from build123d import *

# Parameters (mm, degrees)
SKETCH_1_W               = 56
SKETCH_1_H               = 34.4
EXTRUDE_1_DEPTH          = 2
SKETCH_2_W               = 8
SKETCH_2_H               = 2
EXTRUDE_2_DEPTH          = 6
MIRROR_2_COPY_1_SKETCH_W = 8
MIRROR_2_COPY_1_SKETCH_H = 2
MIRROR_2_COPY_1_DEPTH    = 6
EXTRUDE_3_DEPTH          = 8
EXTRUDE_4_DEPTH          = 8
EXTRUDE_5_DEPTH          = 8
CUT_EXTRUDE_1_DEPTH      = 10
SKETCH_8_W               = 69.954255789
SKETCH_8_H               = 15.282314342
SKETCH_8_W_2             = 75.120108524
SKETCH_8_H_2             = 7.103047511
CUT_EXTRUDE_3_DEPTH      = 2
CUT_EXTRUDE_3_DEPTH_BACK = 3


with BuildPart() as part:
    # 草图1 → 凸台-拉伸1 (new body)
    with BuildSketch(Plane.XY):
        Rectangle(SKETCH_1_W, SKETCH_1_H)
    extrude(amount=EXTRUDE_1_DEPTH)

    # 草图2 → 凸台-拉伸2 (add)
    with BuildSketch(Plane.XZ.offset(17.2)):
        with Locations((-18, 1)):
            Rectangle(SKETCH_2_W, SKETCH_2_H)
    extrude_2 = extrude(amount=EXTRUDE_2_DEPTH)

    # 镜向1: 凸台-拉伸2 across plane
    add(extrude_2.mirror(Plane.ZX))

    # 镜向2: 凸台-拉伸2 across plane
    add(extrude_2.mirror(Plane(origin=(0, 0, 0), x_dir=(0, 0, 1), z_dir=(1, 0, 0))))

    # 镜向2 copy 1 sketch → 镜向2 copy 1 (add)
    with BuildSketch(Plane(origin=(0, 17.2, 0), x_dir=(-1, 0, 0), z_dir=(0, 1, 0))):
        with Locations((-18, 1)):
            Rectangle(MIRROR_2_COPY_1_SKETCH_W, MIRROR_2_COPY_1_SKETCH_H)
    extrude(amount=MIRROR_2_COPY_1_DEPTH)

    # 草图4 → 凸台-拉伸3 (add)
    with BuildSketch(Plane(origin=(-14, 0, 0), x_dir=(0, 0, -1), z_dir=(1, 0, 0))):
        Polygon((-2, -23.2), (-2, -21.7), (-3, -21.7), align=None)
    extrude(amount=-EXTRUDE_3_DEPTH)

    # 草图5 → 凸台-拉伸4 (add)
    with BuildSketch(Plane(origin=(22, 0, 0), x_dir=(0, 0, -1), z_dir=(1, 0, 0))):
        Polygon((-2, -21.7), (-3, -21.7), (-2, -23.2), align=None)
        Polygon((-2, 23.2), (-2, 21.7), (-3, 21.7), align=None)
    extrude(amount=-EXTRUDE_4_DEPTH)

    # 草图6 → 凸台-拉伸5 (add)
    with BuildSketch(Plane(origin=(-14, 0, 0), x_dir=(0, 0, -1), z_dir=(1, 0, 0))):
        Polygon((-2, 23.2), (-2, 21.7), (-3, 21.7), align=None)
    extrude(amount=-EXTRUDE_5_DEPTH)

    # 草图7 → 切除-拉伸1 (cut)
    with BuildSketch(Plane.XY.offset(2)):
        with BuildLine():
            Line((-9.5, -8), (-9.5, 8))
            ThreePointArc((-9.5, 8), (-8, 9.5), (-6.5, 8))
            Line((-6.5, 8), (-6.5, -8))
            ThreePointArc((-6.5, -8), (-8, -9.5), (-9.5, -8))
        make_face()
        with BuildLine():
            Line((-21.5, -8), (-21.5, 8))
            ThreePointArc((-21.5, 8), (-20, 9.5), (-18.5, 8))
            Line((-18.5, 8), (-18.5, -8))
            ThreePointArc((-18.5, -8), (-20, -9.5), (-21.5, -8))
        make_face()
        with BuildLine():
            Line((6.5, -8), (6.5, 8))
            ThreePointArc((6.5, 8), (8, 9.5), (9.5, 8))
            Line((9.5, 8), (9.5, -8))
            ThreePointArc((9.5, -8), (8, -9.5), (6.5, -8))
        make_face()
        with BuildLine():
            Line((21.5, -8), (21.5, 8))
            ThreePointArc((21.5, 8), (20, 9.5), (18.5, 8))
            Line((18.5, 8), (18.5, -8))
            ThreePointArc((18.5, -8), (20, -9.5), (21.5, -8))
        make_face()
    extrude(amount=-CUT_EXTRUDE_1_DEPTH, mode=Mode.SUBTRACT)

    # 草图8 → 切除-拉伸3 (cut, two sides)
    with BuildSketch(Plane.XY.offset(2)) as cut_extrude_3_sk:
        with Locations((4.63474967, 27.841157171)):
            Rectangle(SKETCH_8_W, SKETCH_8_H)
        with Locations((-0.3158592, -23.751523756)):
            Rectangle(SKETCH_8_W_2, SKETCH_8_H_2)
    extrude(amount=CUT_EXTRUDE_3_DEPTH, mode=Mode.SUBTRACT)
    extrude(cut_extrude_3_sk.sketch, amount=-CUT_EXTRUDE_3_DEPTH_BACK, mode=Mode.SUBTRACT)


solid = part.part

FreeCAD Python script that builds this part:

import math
import FreeCAD as App
import Part
import Sketcher


def add_polygon(sketch, points):
    """Adds a closed chain of lines whose ends are joined by coincident constraints."""
    first, n = sketch.GeometryCount, len(points)
    for a, b in zip(points, points[1:] + points[:1]):
        sketch.addGeometry(Part.LineSegment(App.Vector(*a, 0), App.Vector(*b, 0)), False)
    for i in range(n):
        sketch.addConstraint(Sketcher.Constraint("Coincident", first + i, 2, first + (i + 1) % n, 1))

doc = App.newDocument("Part")
body = doc.addObject("PartDesign::Body", "Body")

sketch1 = doc.addObject("Sketcher::SketchObject", "Sketch")
body.addObject(sketch1)
sketch1.AttachmentSupport = (doc.XY_Plane, [""])
sketch1.MapMode = "FlatFace"
add_polygon(sketch1, [(-28, 17), (-28, -17), (28, -17), (28, 17)])
sketch1.addConstraint([
    Sketcher.Constraint("Vertical", 0),
    Sketcher.Constraint("Horizontal", 1),
    Sketcher.Constraint("Vertical", 2),
    Sketcher.Constraint("Horizontal", 3),
    Sketcher.Constraint("Symmetric", 0, 2, 2, 2, -1, 1),
    Sketcher.Constraint("DistanceX", 1, 1, 1, 2, 56.0),
    Sketcher.Constraint("DistanceY", 0, 2, 0, 1, 34.4),
])
pad1 = doc.addObject("PartDesign::Pad", "Pad")
body.addObject(pad1)
pad1.Profile = sketch1
pad1.Length = 2

sketch2 = doc.addObject("Sketcher::SketchObject", "Sketch001")
body.addObject(sketch2)
sketch2.AttachmentSupport = (doc.XZ_Plane, [""])
sketch2.MapMode = "FlatFace"
sketch2.AttachmentOffset = App.Placement(App.Vector(0, 0, 17.2), App.Rotation())
add_polygon(sketch2, [(-22, 2), (-22, 0), (-14, 0), (-14, 2)])
sketch2.addConstraint([
    Sketcher.Constraint("Vertical", 0),
    Sketcher.Constraint("Horizontal", 1),
    Sketcher.Constraint("Vertical", 2),
    Sketcher.Constraint("Horizontal", 3),
    Sketcher.Constraint("PointOnObject", 0, 2, -1),
    Sketcher.Constraint("DistanceX", 1, 1, 1, 2, 8.0),
    Sketcher.Constraint("DistanceY", 0, 2, 0, 1, 2.0),
    Sketcher.Constraint("DistanceX", 0, 2, -1, 1, 22.0),
])
pad2 = doc.addObject("PartDesign::Pad", "Pad001")
body.addObject(pad2)
pad2.Profile = sketch2
pad2.Length = 6
doc.recompute()

mirrored = doc.addObject("PartDesign::Mirrored", "Mirrored")
body.addObject(mirrored)
mirrored.Originals = [pad2]
mirrored.MirrorPlane = (doc.XZ_Plane, [""])
body.Tip = mirrored
doc.recompute()

mirrored2 = doc.addObject("PartDesign::Mirrored", "Mirrored001")
body.addObject(mirrored2)
mirrored2.Originals = [pad2]
mirrored2.MirrorPlane = (doc.YZ_Plane, [""])
body.Tip = mirrored2

sketch3 = doc.addObject("Sketcher::SketchObject", "Sketch002")
body.addObject(sketch3)
sketch3.AttachmentSupport = (doc.XZ_Plane, [""])
sketch3.MapMode = "FlatFace"
sketch3.AttachmentOffset = App.Placement(App.Vector(0, 0, -17.2), App.Rotation())
add_polygon(sketch3, [(22, 2), (22, 0), (14, 0), (14, 2)])
sketch3.addConstraint([
    Sketcher.Constraint("Vertical", 0),
    Sketcher.Constraint("Horizontal", 1),
    Sketcher.Constraint("Vertical", 2),
    Sketcher.Constraint("Horizontal", 3),
    Sketcher.Constraint("PointOnObject", 0, 2, -1),
    Sketcher.Constraint("DistanceX", 1, 2, 1, 1, 8.0),
    Sketcher.Constraint("DistanceY", 0, 2, 0, 1, 2.0),
    Sketcher.Constraint("DistanceX", -1, 1, 0, 2, 22.0),
])
pad3 = doc.addObject("PartDesign::Pad", "Pad002")
body.addObject(pad3)
pad3.Profile = sketch3
pad3.Length = 6
pad3.Reversed = True

sketch4 = doc.addObject("Sketcher::SketchObject", "Sketch003")
body.addObject(sketch4)
sketch4.AttachmentSupport = (doc.YZ_Plane, [""])
sketch4.MapMode = "FlatFace"
sketch4.AttachmentOffset = App.Placement(App.Vector(0, 0, -14), App.Rotation())
add_polygon(sketch4, [(-23.2, 2), (-21.7, 2), (-21.7, 3)])
sketch4.addConstraint([
    Sketcher.Constraint("Horizontal", 0),
    Sketcher.Constraint("Vertical", 1),
    Sketcher.Constraint("DistanceY", 1, 1, 1, 2, 1.0),
    Sketcher.Constraint("DistanceX", 0, 1, 0, 2, 1.5),
    Sketcher.Constraint("DistanceY", -1, 1, 0, 2, 2.0),
    Sketcher.Constraint("DistanceX", 0, 2, -1, 1, 21.7),
])
pad4 = doc.addObject("PartDesign::Pad", "Pad003")
body.addObject(pad4)
pad4.Profile = sketch4
pad4.Length = 8
pad4.Reversed = True

sketch5 = doc.addObject("Sketcher::SketchObject", "Sketch004")
body.addObject(sketch5)
sketch5.AttachmentSupport = (doc.YZ_Plane, [""])
sketch5.MapMode = "FlatFace"
sketch5.AttachmentOffset = App.Placement(App.Vector(0, 0, 22), App.Rotation())
add_polygon(sketch5, [(-21.7, 2), (-21.7, 3), (-23.2, 2)])
add_polygon(sketch5, [(21.7, 2), (23.2, 2), (21.7, 3)])
sketch5.addConstraint([
    Sketcher.Constraint("Vertical", 0),
    Sketcher.Constraint("Horizontal", 2),
    Sketcher.Constraint("Horizontal", 3),
    Sketcher.Constraint("Vertical", 5),
    Sketcher.Constraint("Symmetric", 1, 2, 3, 2, -2),
    Sketcher.Constraint("Symmetric", 0, 2, 4, 2, -2),
    Sketcher.Constraint("DistanceY", 0, 1, 0, 2, 1.0),
    Sketcher.Constraint("DistanceX", 2, 1, 2, 2, 1.5),
    Sketcher.Constraint("DistanceY", -1, 1, 0, 2, 3.0),
    Sketcher.Constraint("DistanceX", 0, 2, -1, 1, 21.7),
])
pad5 = doc.addObject("PartDesign::Pad", "Pad004")
body.addObject(pad5)
pad5.Profile = sketch5
pad5.Length = 8
pad5.Reversed = True

sketch6 = doc.addObject("Sketcher::SketchObject", "Sketch005")
body.addObject(sketch6)
sketch6.AttachmentSupport = (doc.YZ_Plane, [""])
sketch6.MapMode = "FlatFace"
sketch6.AttachmentOffset = App.Placement(App.Vector(0, 0, -14), App.Rotation())
add_polygon(sketch6, [(21.7, 2), (23.2, 2), (21.7, 3)])
sketch6.addConstraint([
    Sketcher.Constraint("Horizontal", 0),
    Sketcher.Constraint("Vertical", 2),
    Sketcher.Constraint("DistanceY", 2, 2, 2, 1, 1.0),
    Sketcher.Constraint("DistanceX", 0, 1, 0, 2, 1.5),
    Sketcher.Constraint("DistanceY", -1, 1, 0, 2, 2.0),
    Sketcher.Constraint("DistanceX", -1, 1, 0, 2, 23.2),
])
pad6 = doc.addObject("PartDesign::Pad", "Pad005")
body.addObject(pad6)
pad6.Profile = sketch6
pad6.Length = 8
pad6.Reversed = True

sketch7 = doc.addObject("Sketcher::SketchObject", "Sketch006")
body.addObject(sketch7)
sketch7.AttachmentSupport = (doc.XY_Plane, [""])
sketch7.MapMode = "FlatFace"
sketch7.AttachmentOffset = App.Placement(App.Vector(0, 0, 2), App.Rotation())
sketch7.addGeometry([
    Part.LineSegment(App.Vector(-9.5, 8, 0), App.Vector(-9.5, -8, 0)),
    Part.ArcOfCircle(Part.Circle(App.Vector(-8, -8, 0), App.Vector(0, 0, 1), 1.5), math.radians(180), math.radians(360)),
    Part.LineSegment(App.Vector(-6.5, -8, 0), App.Vector(-6.5, 8, 0)),
    Part.ArcOfCircle(Part.Circle(App.Vector(-8, 8, 0), App.Vector(0, 0, 1), 1.5), math.radians(0), math.radians(180)),
    Part.LineSegment(App.Vector(-21.5, 8, 0), App.Vector(-21.5, -8, 0)),
    Part.ArcOfCircle(Part.Circle(App.Vector(-20, -8, 0), App.Vector(0, 0, 1), 1.5), math.radians(180), math.radians(360)),
    Part.LineSegment(App.Vector(-18.5, -8, 0), App.Vector(-18.5, 8, 0)),
    Part.ArcOfCircle(Part.Circle(App.Vector(-20, 8, 0), App.Vector(0, 0, 1), 1.5), math.radians(0), math.radians(180)),
    Part.LineSegment(App.Vector(6.5, 8, 0), App.Vector(6.5, -8, 0)),
    Part.ArcOfCircle(Part.Circle(App.Vector(8, -8, 0), App.Vector(0, 0, 1), 1.5), math.radians(180), math.radians(360)),
    Part.LineSegment(App.Vector(9.5, -8, 0), App.Vector(9.5, 8, 0)),
    Part.ArcOfCircle(Part.Circle(App.Vector(8, 8, 0), App.Vector(0, 0, 1), 1.5), math.radians(0), math.radians(180)),
    Part.LineSegment(App.Vector(21.5, -8, 0), App.Vector(21.5, 8, 0)),
    Part.ArcOfCircle(Part.Circle(App.Vector(20, 8, 0), App.Vector(0, 0, 1), 1.5), math.radians(0), math.radians(180)),
    Part.LineSegment(App.Vector(18.5, 8, 0), App.Vector(18.5, -8, 0)),
    Part.ArcOfCircle(Part.Circle(App.Vector(20, -8, 0), App.Vector(0, 0, 1), 1.5), math.radians(180), math.radians(360)),
], False)
sketch7.addConstraint([
    Sketcher.Constraint("Tangent", 0, 2, 1, 1),
    Sketcher.Constraint("Tangent", 1, 2, 2, 1),
    Sketcher.Constraint("Tangent", 2, 2, 3, 1),
    Sketcher.Constraint("Tangent", 3, 2, 0, 1),
    Sketcher.Constraint("Tangent", 4, 2, 5, 1),
    Sketcher.Constraint("Tangent", 5, 2, 6, 1),
    Sketcher.Constraint("Tangent", 6, 2, 7, 1),
    Sketcher.Constraint("Tangent", 7, 2, 4, 1),
    Sketcher.Constraint("Tangent", 8, 2, 9, 1),
    Sketcher.Constraint("Tangent", 9, 2, 10, 1),
    Sketcher.Constraint("Tangent", 10, 2, 11, 1),
    Sketcher.Constraint("Tangent", 11, 2, 8, 1),
    Sketcher.Constraint("Tangent", 12, 2, 13, 1),
    Sketcher.Constraint("Tangent", 13, 2, 14, 1),
    Sketcher.Constraint("Tangent", 14, 2, 15, 1),
    Sketcher.Constraint("Tangent", 15, 2, 12, 1),
    Sketcher.Constraint("Vertical", 0),
    Sketcher.Constraint("Vertical", 2),
    Sketcher.Constraint("Vertical", 4),
    Sketcher.Constraint("Vertical", 6),
    Sketcher.Constraint("Vertical", 8),
    Sketcher.Constraint("Vertical", 10),
    Sketcher.Constraint("Vertical", 12),
    Sketcher.Constraint("Vertical", 14),
    Sketcher.Constraint("Equal", 3, 5),
    Sketcher.Constraint("Equal", 7, 9),
    Sketcher.Constraint("Equal", 11, 13),
    Sketcher.Constraint("Symmetric", 3, 3, 9, 3, -1, 1),
    Sketcher.Constraint("Symmetric", 5, 3, 13, 3, -1, 1),
    Sketcher.Constraint("Horizontal", 1, 3, 5, 3),
    Sketcher.Constraint("Horizontal", 3, 3, 7, 3),
    Sketcher.Constraint("Horizontal", 5, 3, 9, 3),
    Sketcher.Constraint("Horizontal", 7, 3, 11, 3),
    Sketcher.Constraint("Horizontal", 9, 3, 15, 3),
    Sketcher.Constraint("Radius", 1, 1.5),
    Sketcher.Constraint("DistanceY", 0, 2, 0, 1, 16.0),
    Sketcher.Constraint("DistanceX", 1, 3, -1, 1, 8.0),
    Sketcher.Constraint("DistanceX", 5, 3, -1, 1, 20.0),
])
pocket1 = doc.addObject("PartDesign::Pocket", "Pocket")
body.addObject(pocket1)
pocket1.Profile = sketch7
pocket1.Length = 10

sketch8 = doc.addObject("Sketcher::SketchObject", "Sketch007")
body.addObject(sketch8)
sketch8.AttachmentSupport = (doc.XY_Plane, [""])
sketch8.MapMode = "FlatFace"
sketch8.AttachmentOffset = App.Placement(App.Vector(0, 0, 2), App.Rotation())
add_polygon(sketch8, [(-30, 35), (-30, 20), (40, 20), (40, 35)])
add_polygon(sketch8, [(-38, -20), (-38, -27), (37, -27), (37, -20)])
sketch8.addConstraint([
    Sketcher.Constraint("Vertical", 0),
    Sketcher.Constraint("Horizontal", 1),
    Sketcher.Constraint("Vertical", 2),
    Sketcher.Constraint("Horizontal", 3),
    Sketcher.Constraint("Vertical", 4),
    Sketcher.Constraint("Horizontal", 5),
    Sketcher.Constraint("Vertical", 6),
    Sketcher.Constraint("Horizontal", 7),
    Sketcher.Constraint("DistanceY", -1, 1, 0, 2, 20.2),
    Sketcher.Constraint("DistanceY", 6, 2, -1, 1, 20.2),
    Sketcher.Constraint("DistanceX", 5, 1, 5, 2, 75.120109),
    Sketcher.Constraint("DistanceX", 1, 1, 1, 2, 69.954256),
    Sketcher.Constraint("DistanceY", 0, 2, 0, 1, 15.282314),
    Sketcher.Constraint("DistanceY", 4, 2, 4, 1, 7.103048),
    Sketcher.Constraint("DistanceX", 0, 2, -1, 1, 30.342378),
    Sketcher.Constraint("DistanceX", 4, 2, 1, 2, 77.487791),
])
pocket2 = doc.addObject("PartDesign::Pocket", "Pocket001")
body.addObject(pocket2)
pocket2.Profile = sketch8
pocket2.Type = "ThroughAll"
pocket2.Midplane = True

doc.recompute()
